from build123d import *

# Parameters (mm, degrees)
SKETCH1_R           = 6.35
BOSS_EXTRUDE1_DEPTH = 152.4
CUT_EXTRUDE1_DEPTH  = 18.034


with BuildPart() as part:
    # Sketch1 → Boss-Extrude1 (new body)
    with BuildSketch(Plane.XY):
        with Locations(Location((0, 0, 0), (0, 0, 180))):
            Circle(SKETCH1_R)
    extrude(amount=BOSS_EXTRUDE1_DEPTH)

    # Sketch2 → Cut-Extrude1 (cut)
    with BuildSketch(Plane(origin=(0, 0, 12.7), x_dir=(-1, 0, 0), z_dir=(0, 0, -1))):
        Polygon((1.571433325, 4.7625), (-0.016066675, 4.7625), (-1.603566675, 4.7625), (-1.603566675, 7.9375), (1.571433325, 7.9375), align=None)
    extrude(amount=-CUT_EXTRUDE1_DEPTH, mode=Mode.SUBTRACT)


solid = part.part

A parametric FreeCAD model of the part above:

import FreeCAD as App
import Part
import Sketcher
Q = App.Units.Quantity

doc = App.newDocument("Part")
body = doc.addObject("PartDesign::Body", "Body")

sketch1 = body.newObject("Sketcher::SketchObject", "Sketch")
sketch1.AttachmentSupport = (doc.getObject("XY_Plane"), [""])
sketch1.MapMode = "FlatFace"
sketch1.addGeometry(Part.Circle(App.Vector(0, 0, 0), App.Vector(0, 0, 1), 6), False)
sketch1.addConstraint([
    Sketcher.Constraint("Coincident", 0, 3, -1, 1),
    Sketcher.Constraint("Diameter", 0, Q("0.5 in")),
])
pad1 = body.newObject("PartDesign::Pad", "Pad")
pad1.Profile = sketch1
pad1.Length = Q("6 in")

sketch2 = body.newObject("Sketcher::SketchObject", "Sketch001")
sketch2.AttachmentSupport = (doc.getObject("XY_Plane"), [""])
sketch2.MapMode = "FlatFace"
sketch2.AttachmentOffset = App.Placement(App.Vector(0, 0, 0.5 * 25.4), App.Rotation())
sketch2.addGeometry([
    Part.LineSegment(App.Vector(1.6, 4.8, 0), App.Vector(-1.6, 4.8, 0)),
    Part.LineSegment(App.Vector(-1.6, 4.8, 0), App.Vector(-1.6, 7.9, 0)),
    Part.LineSegment(App.Vector(-1.6, 7.9, 0), App.Vector(1.6, 7.9, 0)),
    Part.LineSegment(App.Vector(1.6, 7.9, 0), App.Vector(1.6, 4.8, 0)),
], False)
sketch2.addConstraint([
    Sketcher.Constraint("Coincident", 0, 2, 1, 1),
    Sketcher.Constraint("Coincident", 1, 2, 2, 1),
    Sketcher.Constraint("Coincident", 2, 2, 3, 1),
    Sketcher.Constraint("Coincident", 3, 2, 0, 1),
    Sketcher.Constraint("Horizontal", 0),
    Sketcher.Constraint("Vertical", 1),
    Sketcher.Constraint("Horizontal", 2),
    Sketcher.Constraint("Vertical", 3),
    Sketcher.Constraint("Equal", 2, 1),
    Sketcher.Constraint("DistanceX", 0, 2, 0, 1, Q("0.125 in")),
    Sketcher.Constraint("DistanceY", -1, 1, 0, 2, Q("0.1875 in")),
    Sketcher.Constraint("DistanceX", 0, 2, -1, 1, 1.571433),
])
pocket1 = body.newObject("PartDesign::Pocket", "Pocket")
pocket1.Profile = sketch2
pocket1.Length = Q("0.71 in")
pocket1.Reversed = True

doc.recompute()
